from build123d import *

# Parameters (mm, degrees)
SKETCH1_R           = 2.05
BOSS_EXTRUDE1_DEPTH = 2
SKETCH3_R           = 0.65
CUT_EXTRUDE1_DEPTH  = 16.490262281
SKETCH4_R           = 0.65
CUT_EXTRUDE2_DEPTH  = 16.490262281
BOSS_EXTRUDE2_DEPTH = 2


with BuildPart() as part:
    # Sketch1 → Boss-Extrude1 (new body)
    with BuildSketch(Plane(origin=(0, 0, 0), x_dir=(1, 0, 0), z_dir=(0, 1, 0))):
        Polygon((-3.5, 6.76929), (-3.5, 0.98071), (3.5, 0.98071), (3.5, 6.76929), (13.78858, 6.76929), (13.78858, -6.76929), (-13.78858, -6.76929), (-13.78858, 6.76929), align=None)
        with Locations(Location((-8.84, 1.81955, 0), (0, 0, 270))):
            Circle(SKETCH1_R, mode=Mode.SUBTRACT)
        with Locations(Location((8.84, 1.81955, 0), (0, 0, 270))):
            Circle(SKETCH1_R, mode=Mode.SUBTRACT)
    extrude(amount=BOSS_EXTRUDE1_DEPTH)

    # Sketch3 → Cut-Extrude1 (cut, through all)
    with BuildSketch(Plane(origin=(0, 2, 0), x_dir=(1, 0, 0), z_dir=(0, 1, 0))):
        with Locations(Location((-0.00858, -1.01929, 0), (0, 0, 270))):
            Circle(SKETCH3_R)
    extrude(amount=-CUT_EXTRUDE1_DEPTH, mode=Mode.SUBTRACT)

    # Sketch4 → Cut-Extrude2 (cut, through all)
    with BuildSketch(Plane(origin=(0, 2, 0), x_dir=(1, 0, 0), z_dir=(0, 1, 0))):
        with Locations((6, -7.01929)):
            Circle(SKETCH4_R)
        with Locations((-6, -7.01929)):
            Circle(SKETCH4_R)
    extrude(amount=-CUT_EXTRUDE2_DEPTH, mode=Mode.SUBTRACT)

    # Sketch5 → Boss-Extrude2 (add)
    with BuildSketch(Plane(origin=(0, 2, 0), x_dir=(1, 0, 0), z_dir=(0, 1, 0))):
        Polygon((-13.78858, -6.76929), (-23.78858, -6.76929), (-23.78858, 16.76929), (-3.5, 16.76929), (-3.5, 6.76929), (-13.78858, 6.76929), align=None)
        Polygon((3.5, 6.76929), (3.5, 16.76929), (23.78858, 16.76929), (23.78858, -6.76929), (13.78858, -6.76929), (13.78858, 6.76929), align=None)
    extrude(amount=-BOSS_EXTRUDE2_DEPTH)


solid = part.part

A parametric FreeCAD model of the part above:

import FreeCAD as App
import Part
import Sketcher
Q = App.Units.Quantity

doc = App.newDocument("Part")
body = doc.addObject("PartDesign::Body", "Body")

# Sketch on XZ plane
sketch1 = doc.addObject("Sketcher::SketchObject", "Sketch")
body.addObject(sketch1)
sketch1.AttachmentSupport = (doc.XZ_Plane, [""])
sketch1.MapMode = "FlatFace"
sketch1.addGeometry(Part.LineSegment(App.Vector(-3.5, -1, 0), App.Vector(-3.5, -6.8, 0)), False)
sketch1.addGeometry(Part.LineSegment(App.Vector(-3.5, -6.8, 0), App.Vector(-13.8, -6.8, 0)), False)
sketch1.addGeometry(Part.LineSegment(App.Vector(-13.8, -6.8, 0), App.Vector(-13.8, 6.8, 0)), False)
sketch1.addGeometry(Part.LineSegment(App.Vector(-13.8, 6.8, 0), App.Vector(13.8, 6.8, 0)), False)
sketch1.addGeometry(Part.LineSegment(App.Vector(13.8, 6.8, 0), App.Vector(13.8, -6.8, 0)), False)
sketch1.addGeometry(Part.LineSegment(App.Vector(13.8, -6.8, 0), App.Vector(3.5, -6.8, 0)), False)
sketch1.addGeometry(Part.LineSegment(App.Vector(3.5, -6.8, 0), App.Vector(3.5, -1, 0)), False)
sketch1.addGeometry(Part.LineSegment(App.Vector(3.5, -1, 0), App.Vector(-3.5, -1, 0)), False)
sketch1.addGeometry(Part.Circle(App.Vector(8.8, -1.8, 0), App.Vector(0, 0, 1), 2), False)
sketch1.addGeometry(Part.Circle(App.Vector(-8.8, -1.8, 0), App.Vector(0, 0, 1), 2), False)
sketch1.addConstraint(Sketcher.Constraint("Coincident", 0, 2, 1, 1))
sketch1.addConstraint(Sketcher.Constraint("Coincident", 1, 2, 2, 1))
sketch1.addConstraint(Sketcher.Constraint("Coincident", 2, 2, 3, 1))
sketch1.addConstraint(Sketcher.Constraint("Coincident", 3, 2, 4, 1))
sketch1.addConstraint(Sketcher.Constraint("Coincident", 4, 2, 5, 1))
sketch1.addConstraint(Sketcher.Constraint("Coincident", 5, 2, 6, 1))
sketch1.addConstraint(Sketcher.Constraint("Coincident", 6, 2, 7, 1))
sketch1.addConstraint(Sketcher.Constraint("Coincident", 7, 2, 0, 1))
sketch1.addConstraint(Sketcher.Constraint("Vertical", 0))
sketch1.addConstraint(Sketcher.Constraint("Horizontal", 1))
sketch1.addConstraint(Sketcher.Constraint("Vertical", 2))
sketch1.addConstraint(Sketcher.Constraint("Horizontal", 3))
sketch1.addConstraint(Sketcher.Constraint("Vertical", 4))
sketch1.addConstraint(Sketcher.Constraint("Horizontal", 5))
sketch1.addConstraint(Sketcher.Constraint("Vertical", 6))
sketch1.addConstraint(Sketcher.Constraint("Horizontal", 7))
sketch1.addConstraint(Sketcher.Constraint("Equal", 8, 9))
sketch1.addConstraint(Sketcher.Constraint("Symmetric", 1, 2, 3, 2, -1, 1))
sketch1.addConstraint(Sketcher.Constraint("Symmetric", 8, 3, 9, 3, -2))
sketch1.addConstraint(Sketcher.Constraint("Symmetric", 0, 2, 5, 2, -2))
sketch1.addConstraint(Sketcher.Constraint("Diameter", 8, Q("4.1 mm")))
sketch1.addConstraint(Sketcher.Constraint("DistanceX", 7, 2, 7, 1, Q("7 mm")))
sketch1.addConstraint(Sketcher.Constraint("DistanceX", -1, 1, 8, 3, Q("8.84 mm")))
sketch1.addConstraint(Sketcher.Constraint("DistanceX", 1, 2, 1, 1, Q("10.28858 mm")))
sketch1.addConstraint(Sketcher.Constraint("DistanceY", 0, 2, 0, 1, Q("5.78858 mm")))
sketch1.addConstraint(Sketcher.Constraint("DistanceY", 2, 1, 2, 2, Q("13.53858 mm")))
sketch1.addConstraint(Sketcher.Constraint("DistanceY", 8, 3, -1, 1, Q("1.81955 mm")))
pad1 = doc.addObject("PartDesign::Pad", "Pad")
body.addObject(pad1)
pad1.Profile = sketch1
pad1.Length = 2
pad1.Reversed = True

# Sketch on XZ plane
sketch2 = doc.addObject("Sketcher::SketchObject", "Sketch001")
body.addObject(sketch2)
sketch2.AttachmentSupport = (doc.XZ_Plane, [""])
sketch2.MapMode = "FlatFace"
sketch2.AttachmentOffset = App.Placement(App.Vector(0, 0, -2), App.Rotation())
sketch2.addGeometry(Part.Circle(App.Vector(0, 1, 0), App.Vector(0, 0, 1), 0.7), False)
sketch2.addConstraint(Sketcher.Constraint("Diameter", 0, Q("1.3 mm")))
sketch2.addConstraint(Sketcher.Constraint("DistanceX", 0, 3, -1, 1, Q("0.00858 mm")))
sketch2.addConstraint(Sketcher.Constraint("DistanceY", -1, 1, 0, 3, Q("1.01929 mm")))
pocket1 = doc.addObject("PartDesign::Pocket", "Pocket")
body.addObject(pocket1)
pocket1.Profile = sketch2
pocket1.Type = "ThroughAll"
pocket1.Reversed = True

# Sketch on XZ plane
sketch3 = doc.addObject("Sketcher::SketchObject", "Sketch002")
body.addObject(sketch3)
sketch3.AttachmentSupport = (doc.XZ_Plane, [""])
sketch3.MapMode = "FlatFace"
sketch3.AttachmentOffset = App.Placement(App.Vector(0, 0, -2), App.Rotation())
sketch3.addGeometry(Part.Circle(App.Vector(6, 7, 0), App.Vector(0, 0, 1), 0.7), False)
sketch3.addGeometry(Part.Circle(App.Vector(-6, 7, 0), App.Vector(0, 0, 1), 0.7), False)
sketch3.addConstraint(Sketcher.Constraint("Equal", 0, 1))
sketch3.addConstraint(Sketcher.Constraint("Symmetric", 0, 3, 1, 3, -2))
sketch3.addConstraint(Sketcher.Constraint("Diameter", 0, Q("1.3 mm")))
sketch3.addConstraint(Sketcher.Constraint("DistanceX", -1, 1, 0, 3, Q("6 mm")))
sketch3.addConstraint(Sketcher.Constraint("DistanceY", -1, 1, 0, 3, Q("7.01929 mm")))
pocket2 = doc.addObject("PartDesign::Pocket", "Pocket001")
body.addObject(pocket2)
pocket2.Profile = sketch3
pocket2.Type = "ThroughAll"
pocket2.Reversed = True

# Sketch on XZ plane
sketch4 = doc.addObject("Sketcher::SketchObject", "Sketch003")
body.addObject(sketch4)
sketch4.AttachmentSupport = (doc.XZ_Plane, [""])
sketch4.MapMode = "FlatFace"
sketch4.AttachmentOffset = App.Placement(App.Vector(0, 0, -2), App.Rotation())
sketch4.addGeometry(Part.LineSegment(App.Vector(-24, 7, 0), App.Vector(-14, 7, 0)), False)
sketch4.addGeometry(Part.LineSegment(App.Vector(-14, 7, 0), App.Vector(-14, -7, 0)), False)
sketch4.addGeometry(Part.LineSegment(App.Vector(-14, -7, 0), App.Vector(-4, -7, 0)), False)
sketch4.addGeometry(Part.LineSegment(App.Vector(-4, -7, 0), App.Vector(-4, -17, 0)), False)
sketch4.addGeometry(Part.LineSegment(App.Vector(-4, -17, 0), App.Vector(-24, -17, 0)), False)
sketch4.addGeometry(Part.LineSegment(App.Vector(-24, -17, 0), App.Vector(-24, 7, 0)), False)
sketch4.addGeometry(Part.LineSegment(App.Vector(4, -17, 0), App.Vector(4, -7, 0)), False)
sketch4.addGeometry(Part.LineSegment(App.Vector(4, -7, 0), App.Vector(14, -7, 0)), False)
sketch4.addGeometry(Part.LineSegment(App.Vector(14, -7, 0), App.Vector(14, 7, 0)), False)
sketch4.addGeometry(Part.LineSegment(App.Vector(14, 7, 0), App.Vector(24, 7, 0)), False)
sketch4.addGeometry(Part.LineSegment(App.Vector(24, 7, 0), App.Vector(24, -17, 0)), False)
sketch4.addGeometry(Part.LineSegment(App.Vector(24, -17, 0), App.Vector(4, -17, 0)), False)
sketch4.addConstraint(Sketcher.Constraint("Coincident", 0, 2, 1, 1))
sketch4.addConstraint(Sketcher.Constraint("Coincident", 1, 2, 2, 1))
sketch4.addConstraint(Sketcher.Constraint("Coincident", 2, 2, 3, 1))
sketch4.addConstraint(Sketcher.Constraint("Coincident", 3, 2, 4, 1))
sketch4.addConstraint(Sketcher.Constraint("Coincident", 4, 2, 5, 1))
sketch4.addConstraint(Sketcher.Constraint("Coincident", 5, 2, 0, 1))
sketch4.addConstraint(Sketcher.Constraint("Coincident", 6, 2, 7, 1))
sketch4.addConstraint(Sketcher.Constraint("Coincident", 7, 2, 8, 1))
sketch4.addConstraint(Sketcher.Constraint("Coincident", 8, 2, 9, 1))
sketch4.addConstraint(Sketcher.Constraint("Coincident", 9, 2, 10, 1))
sketch4.addConstraint(Sketcher.Constraint("Coincident", 10, 2, 11, 1))
sketch4.addConstraint(Sketcher.Constraint("Coincident", 11, 2, 6, 1))
sketch4.addConstraint(Sketcher.Constraint("Horizontal", 0))
sketch4.addConstraint(Sketcher.Constraint("Vertical", 1))
sketch4.addConstraint(Sketcher.Constraint("Horizontal", 2))
sketch4.addConstraint(Sketcher.Constraint("Vertical", 3))
sketch4.addConstraint(Sketcher.Constraint("Horizontal", 4))
sketch4.addConstraint(Sketcher.Constraint("Vertical", 5))
sketch4.addConstraint(Sketcher.Constraint("Vertical", 6))
sketch4.addConstraint(Sketcher.Constraint("Horizontal", 7))
sketch4.addConstraint(Sketcher.Constraint("Vertical", 8))
sketch4.addConstraint(Sketcher.Constraint("Horizontal", 9))
sketch4.addConstraint(Sketcher.Constraint("Vertical", 10))
sketch4.addConstraint(Sketcher.Constraint("Horizontal", 11))
sketch4.addConstraint(Sketcher.Constraint("Symmetric", 0, 2, 7, 2, -1, 1))
sketch4.addConstraint(Sketcher.Constraint("Symmetric", 2, 2, 6, 2, -2))
sketch4.addConstraint(Sketcher.Constraint("Symmetric", 5, 2, 9, 2, -2))
sketch4.addConstraint(Sketcher.Constraint("Horizontal", 4, 2, 10, 2))
sketch4.addConstraint(Sketcher.Constraint("Equal", 9, 3))
sketch4.addConstraint(Sketcher.Constraint("DistanceX", 0, 1, 0, 2, Q("10 mm")))
sketch4.addConstraint(Sketcher.Constraint("DistanceX", 2, 2, 6, 2, Q("7 mm")))
sketch4.addConstraint(Sketcher.Constraint("DistanceX", 2, 1, 2, 2, Q("10.28858 mm")))
sketch4.addConstraint(Sketcher.Constraint("DistanceY", 1, 2, 1, 1, Q("13.53858 mm")))
pad2 = doc.addObject("PartDesign::Pad", "Pad001")
body.addObject(pad2)
pad2.Profile = sketch4
pad2.Length = 2

doc.recompute()
